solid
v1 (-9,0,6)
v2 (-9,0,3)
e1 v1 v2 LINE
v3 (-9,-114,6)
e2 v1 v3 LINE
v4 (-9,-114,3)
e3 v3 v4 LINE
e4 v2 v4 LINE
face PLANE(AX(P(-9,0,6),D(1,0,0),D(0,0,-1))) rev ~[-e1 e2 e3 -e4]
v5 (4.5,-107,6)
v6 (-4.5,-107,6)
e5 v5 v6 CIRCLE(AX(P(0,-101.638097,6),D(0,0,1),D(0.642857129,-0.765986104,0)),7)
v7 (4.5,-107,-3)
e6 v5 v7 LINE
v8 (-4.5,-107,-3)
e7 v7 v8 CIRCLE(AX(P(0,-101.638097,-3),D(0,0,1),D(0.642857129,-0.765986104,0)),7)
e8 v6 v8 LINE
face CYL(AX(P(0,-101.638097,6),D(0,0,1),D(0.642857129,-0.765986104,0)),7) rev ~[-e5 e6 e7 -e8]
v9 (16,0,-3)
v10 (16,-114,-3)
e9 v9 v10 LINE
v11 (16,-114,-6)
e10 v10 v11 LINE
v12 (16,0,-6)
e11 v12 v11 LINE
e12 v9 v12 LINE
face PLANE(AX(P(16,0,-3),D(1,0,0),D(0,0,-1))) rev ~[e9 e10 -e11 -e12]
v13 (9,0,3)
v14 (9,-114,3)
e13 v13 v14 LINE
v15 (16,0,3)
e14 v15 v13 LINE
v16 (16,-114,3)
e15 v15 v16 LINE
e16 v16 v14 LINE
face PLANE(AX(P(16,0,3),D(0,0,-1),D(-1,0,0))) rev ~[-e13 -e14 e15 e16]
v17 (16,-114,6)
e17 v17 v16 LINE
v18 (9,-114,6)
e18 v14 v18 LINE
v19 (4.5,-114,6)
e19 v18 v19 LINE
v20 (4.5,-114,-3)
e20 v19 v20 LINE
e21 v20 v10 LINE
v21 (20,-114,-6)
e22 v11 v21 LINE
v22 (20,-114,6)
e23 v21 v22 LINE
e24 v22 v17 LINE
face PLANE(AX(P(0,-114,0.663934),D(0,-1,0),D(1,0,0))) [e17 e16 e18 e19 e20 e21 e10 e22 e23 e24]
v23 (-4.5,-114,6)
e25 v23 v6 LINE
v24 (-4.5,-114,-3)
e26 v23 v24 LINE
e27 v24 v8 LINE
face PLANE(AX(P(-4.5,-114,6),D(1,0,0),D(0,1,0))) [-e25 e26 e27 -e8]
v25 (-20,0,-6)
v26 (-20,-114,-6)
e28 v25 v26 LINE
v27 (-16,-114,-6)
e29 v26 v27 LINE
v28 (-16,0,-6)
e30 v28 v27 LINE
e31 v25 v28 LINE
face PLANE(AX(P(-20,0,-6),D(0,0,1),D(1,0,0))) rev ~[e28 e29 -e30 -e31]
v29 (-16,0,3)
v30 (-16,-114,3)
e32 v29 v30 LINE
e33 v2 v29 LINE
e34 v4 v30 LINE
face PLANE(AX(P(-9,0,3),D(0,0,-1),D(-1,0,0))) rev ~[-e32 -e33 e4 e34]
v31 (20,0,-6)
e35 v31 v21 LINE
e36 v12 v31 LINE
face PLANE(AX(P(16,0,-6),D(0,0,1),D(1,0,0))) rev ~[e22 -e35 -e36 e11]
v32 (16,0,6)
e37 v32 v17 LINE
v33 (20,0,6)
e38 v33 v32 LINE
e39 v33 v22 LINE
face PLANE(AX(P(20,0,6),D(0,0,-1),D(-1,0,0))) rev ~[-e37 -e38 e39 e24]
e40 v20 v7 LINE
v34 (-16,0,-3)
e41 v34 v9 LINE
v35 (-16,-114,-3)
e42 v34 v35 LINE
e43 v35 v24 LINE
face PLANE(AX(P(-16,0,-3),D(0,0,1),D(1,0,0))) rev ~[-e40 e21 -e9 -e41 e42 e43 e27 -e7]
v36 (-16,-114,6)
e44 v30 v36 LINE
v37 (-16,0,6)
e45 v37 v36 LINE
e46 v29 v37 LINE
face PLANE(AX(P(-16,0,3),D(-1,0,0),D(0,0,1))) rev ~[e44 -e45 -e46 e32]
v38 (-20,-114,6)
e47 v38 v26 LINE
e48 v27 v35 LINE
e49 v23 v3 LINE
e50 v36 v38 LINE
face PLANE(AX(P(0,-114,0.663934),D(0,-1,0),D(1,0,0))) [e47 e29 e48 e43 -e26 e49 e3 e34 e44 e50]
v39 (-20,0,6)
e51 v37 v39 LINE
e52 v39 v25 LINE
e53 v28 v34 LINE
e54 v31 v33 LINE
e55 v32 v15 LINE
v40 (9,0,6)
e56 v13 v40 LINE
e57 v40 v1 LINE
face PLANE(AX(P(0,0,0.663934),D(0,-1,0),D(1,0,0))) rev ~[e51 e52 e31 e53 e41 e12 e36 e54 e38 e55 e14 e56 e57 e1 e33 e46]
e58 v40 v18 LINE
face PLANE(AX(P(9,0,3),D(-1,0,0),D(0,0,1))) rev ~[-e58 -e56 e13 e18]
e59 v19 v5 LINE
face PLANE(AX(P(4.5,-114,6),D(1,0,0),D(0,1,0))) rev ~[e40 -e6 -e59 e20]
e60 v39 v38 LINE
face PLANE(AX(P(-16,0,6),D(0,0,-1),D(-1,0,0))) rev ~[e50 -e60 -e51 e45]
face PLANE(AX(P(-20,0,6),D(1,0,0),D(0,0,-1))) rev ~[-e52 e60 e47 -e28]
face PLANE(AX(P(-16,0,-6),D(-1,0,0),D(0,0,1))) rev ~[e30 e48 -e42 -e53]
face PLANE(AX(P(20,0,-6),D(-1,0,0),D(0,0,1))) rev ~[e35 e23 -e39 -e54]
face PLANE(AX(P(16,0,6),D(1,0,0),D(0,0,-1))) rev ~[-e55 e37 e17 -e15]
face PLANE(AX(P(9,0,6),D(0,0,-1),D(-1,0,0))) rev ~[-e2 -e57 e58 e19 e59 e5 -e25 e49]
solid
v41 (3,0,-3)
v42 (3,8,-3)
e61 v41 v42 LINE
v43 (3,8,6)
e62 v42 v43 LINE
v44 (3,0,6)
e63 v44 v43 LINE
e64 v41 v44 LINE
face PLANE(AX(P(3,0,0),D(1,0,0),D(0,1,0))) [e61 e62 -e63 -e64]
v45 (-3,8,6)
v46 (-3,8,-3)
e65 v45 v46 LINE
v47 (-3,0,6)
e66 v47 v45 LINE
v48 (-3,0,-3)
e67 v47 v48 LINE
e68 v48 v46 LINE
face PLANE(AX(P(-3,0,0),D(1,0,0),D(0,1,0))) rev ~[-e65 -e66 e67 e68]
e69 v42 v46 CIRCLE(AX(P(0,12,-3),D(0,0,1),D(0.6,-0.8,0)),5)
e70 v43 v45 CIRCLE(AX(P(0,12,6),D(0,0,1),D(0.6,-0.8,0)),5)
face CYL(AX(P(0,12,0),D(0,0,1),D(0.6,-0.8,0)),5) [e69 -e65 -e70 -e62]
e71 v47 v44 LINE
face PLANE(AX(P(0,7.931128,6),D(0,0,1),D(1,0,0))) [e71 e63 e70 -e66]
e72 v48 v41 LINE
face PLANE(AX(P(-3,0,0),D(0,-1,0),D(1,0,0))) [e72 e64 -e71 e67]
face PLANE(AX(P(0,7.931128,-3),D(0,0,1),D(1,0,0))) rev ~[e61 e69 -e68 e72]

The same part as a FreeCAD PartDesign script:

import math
import FreeCAD as App
import Part
import Sketcher
from FreeCAD import Vector
Q = App.Units.Quantity


def add_polygon(sketch, points):
    """Adds a closed chain of lines whose ends are joined by coincident constraints."""
    first, n = sketch.GeometryCount, len(points)
    for a, b in zip(points, points[1:] + points[:1]):
        sketch.addGeometry(Part.LineSegment(App.Vector(*a, 0), App.Vector(*b, 0)), False)
    for i in range(n):
        sketch.addConstraint(Sketcher.Constraint("Coincident", first + i, 2, first + (i + 1) % n, 1))

doc = App.newDocument("Part")
body = doc.addObject("PartDesign::Body", "Body")

# Sketch on XZ plane
sketch1 = body.newObject("Sketcher::SketchObject", "Sketch")
sketch1.AttachmentSupport = (doc.getObject("XZ_Plane"), [""])
sketch1.MapMode = "FlatFace"
add_polygon(sketch1, [(-20, 6), (-20, -6), (-16, -6), (-16, -3), (16, -3), (16, -6), (20, -6), (20, 6), (16, 6), (16, 3), (9, 3), (9, 6), (-9, 6), (-9, 3), (-16, 3), (-16, 6)])  # lines 0-15
sketch1.addConstraint([
    Sketcher.Constraint("Vertical", 0),
    Sketcher.Constraint("Horizontal", 1),
    Sketcher.Constraint("Vertical", 2),
    Sketcher.Constraint("Horizontal", 3),
    Sketcher.Constraint("Vertical", 4),
    Sketcher.Constraint("Horizontal", 5),
    Sketcher.Constraint("Vertical", 6),
    Sketcher.Constraint("Horizontal", 7),
    Sketcher.Constraint("Vertical", 8),
    Sketcher.Constraint("Horizontal", 9),
    Sketcher.Constraint("Vertical", 10),
    Sketcher.Constraint("Horizontal", 11),
    Sketcher.Constraint("Vertical", 12),
    Sketcher.Constraint("Horizontal", 13),
    Sketcher.Constraint("Vertical", 14),
    Sketcher.Constraint("Horizontal", 15),
    Sketcher.Constraint("Symmetric", 0, 2, 6, 2, -1, 1),
    Sketcher.Constraint("Symmetric", 2, 2, 8, 2, -1, 1),
    Sketcher.Constraint("Symmetric", 3, 2, 13, 2, -1, 1),
    Sketcher.Constraint("Symmetric", 1, 2, 4, 2, -2),
    Sketcher.Constraint("Horizontal", 7, 2, 10, 2),
    Sketcher.Constraint("Horizontal", 11, 2, 14, 2),
    Sketcher.Constraint("Equal", 9, 13),
    Sketcher.Constraint("DistanceX", 1, 1, 1, 2, Q("4 mm")),
    Sketcher.Constraint("DistanceX", 3, 1, 3, 2, Q("32 mm")),
    Sketcher.Constraint("DistanceX", 9, 2, 9, 1, Q("7 mm")),
    Sketcher.Constraint("DistanceY", 0, 2, 0, 1, Q("12 mm")),
    Sketcher.Constraint("DistanceY", 2, 1, 2, 2, Q("3 mm")),
])
pad1 = body.newObject("PartDesign::Pad", "Pad")
pad1.Profile = sketch1
pad1.Length = 114

# Sketch on XY plane
sketch2 = body.newObject("Sketcher::SketchObject", "Sketch001")
sketch2.AttachmentSupport = (doc.getObject("XY_Plane"), [""])
sketch2.MapMode = "FlatFace"
sketch2.AttachmentOffset = App.Placement(Vector(0, 0, 6), App.Rotation())
sketch2.addGeometry([
    Part.LineSegment(Vector(-4, -114, 0), Vector(4, -114, 0)),
    Part.LineSegment(Vector(4, -114, 0), Vector(4, -107, 0)),
    Part.ArcOfCircle(Part.Circle(Vector(0, -102, 0), Vector(0, 0, 1), 7), math.radians(-50), math.radians(230)),
    Part.LineSegment(Vector(-4, -107, 0), Vector(-4, -114, 0)),
], False)
sketch2.addConstraint([
    Sketcher.Constraint("Coincident", 0, 2, 1, 1),
    Sketcher.Constraint("Coincident", 1, 2, 2, 1),
    Sketcher.Constraint("Coincident", 2, 2, 3, 1),
    Sketcher.Constraint("Coincident", 3, 2, 0, 1),
    Sketcher.Constraint("Horizontal", 0),
    Sketcher.Constraint("Vertical", 1),
    Sketcher.Constraint("Vertical", 3),
    Sketcher.Constraint("Symmetric", 1, 2, 2, 2, -2),
    Sketcher.Constraint("Radius", 2, Q("7 mm")),
    Sketcher.Constraint("DistanceX", 0, 1, 0, 2, Q("9 mm")),
    Sketcher.Constraint("DistanceY", 1, 1, 1, 2, Q("7 mm")),
    Sketcher.Constraint("DistanceY", 0, 2, -1, 1, Q("114 mm")),
])
pocket1 = body.newObject("PartDesign::Pocket", "Pocket")
pocket1.Profile = sketch2
pocket1.Type = "ThroughAll"
body2 = doc.addObject("PartDesign::Body", "Body001")

# Sketch on XY plane
sketch3 = body2.newObject("Sketcher::SketchObject", "Sketch002")
sketch3.AttachmentSupport = (doc.getObject("XY_Plane001"), [""])
sketch3.MapMode = "FlatFace"
sketch3.addGeometry([
    Part.LineSegment(Vector(-3, 0, 0), Vector(3, 0, 0)),
    Part.LineSegment(Vector(3, 0, 0), Vector(3, 8, 0)),
    Part.ArcOfCircle(Part.Circle(Vector(0, 12, 0), Vector(0, 0, 1), 5), math.radians(-53), math.radians(233)),
    Part.LineSegment(Vector(-3, 8, 0), Vector(-3, 0, 0)),
], False)
sketch3.addConstraint([
    Sketcher.Constraint("Coincident", 0, 2, 1, 1),
    Sketcher.Constraint("Coincident", 1, 2, 2, 1),
    Sketcher.Constraint("Coincident", 2, 2, 3, 1),
    Sketcher.Constraint("Coincident", 3, 2, 0, 1),
    Sketcher.Constraint("Horizontal", 0),
    Sketcher.Constraint("Vertical", 1),
    Sketcher.Constraint("Vertical", 3),
    Sketcher.Constraint("Symmetric", 0, 2, 3, 2, -1, 1),
    Sketcher.Constraint("PointOnObject", 2, 3, -2),
    Sketcher.Constraint("Radius", 2, Q("5 mm")),
    Sketcher.Constraint("DistanceX", 0, 1, 0, 2, Q("6 mm")),
    Sketcher.Constraint("DistanceY", 1, 1, 1, 2, Q("8 mm")),
])
pad2 = body2.newObject("PartDesign::Pad", "Pad001")
pad2.Profile = sketch3
pad2.Type = "TwoLengths"
pad2.Length = 6
pad2.Length2 = 3

doc.recompute()
